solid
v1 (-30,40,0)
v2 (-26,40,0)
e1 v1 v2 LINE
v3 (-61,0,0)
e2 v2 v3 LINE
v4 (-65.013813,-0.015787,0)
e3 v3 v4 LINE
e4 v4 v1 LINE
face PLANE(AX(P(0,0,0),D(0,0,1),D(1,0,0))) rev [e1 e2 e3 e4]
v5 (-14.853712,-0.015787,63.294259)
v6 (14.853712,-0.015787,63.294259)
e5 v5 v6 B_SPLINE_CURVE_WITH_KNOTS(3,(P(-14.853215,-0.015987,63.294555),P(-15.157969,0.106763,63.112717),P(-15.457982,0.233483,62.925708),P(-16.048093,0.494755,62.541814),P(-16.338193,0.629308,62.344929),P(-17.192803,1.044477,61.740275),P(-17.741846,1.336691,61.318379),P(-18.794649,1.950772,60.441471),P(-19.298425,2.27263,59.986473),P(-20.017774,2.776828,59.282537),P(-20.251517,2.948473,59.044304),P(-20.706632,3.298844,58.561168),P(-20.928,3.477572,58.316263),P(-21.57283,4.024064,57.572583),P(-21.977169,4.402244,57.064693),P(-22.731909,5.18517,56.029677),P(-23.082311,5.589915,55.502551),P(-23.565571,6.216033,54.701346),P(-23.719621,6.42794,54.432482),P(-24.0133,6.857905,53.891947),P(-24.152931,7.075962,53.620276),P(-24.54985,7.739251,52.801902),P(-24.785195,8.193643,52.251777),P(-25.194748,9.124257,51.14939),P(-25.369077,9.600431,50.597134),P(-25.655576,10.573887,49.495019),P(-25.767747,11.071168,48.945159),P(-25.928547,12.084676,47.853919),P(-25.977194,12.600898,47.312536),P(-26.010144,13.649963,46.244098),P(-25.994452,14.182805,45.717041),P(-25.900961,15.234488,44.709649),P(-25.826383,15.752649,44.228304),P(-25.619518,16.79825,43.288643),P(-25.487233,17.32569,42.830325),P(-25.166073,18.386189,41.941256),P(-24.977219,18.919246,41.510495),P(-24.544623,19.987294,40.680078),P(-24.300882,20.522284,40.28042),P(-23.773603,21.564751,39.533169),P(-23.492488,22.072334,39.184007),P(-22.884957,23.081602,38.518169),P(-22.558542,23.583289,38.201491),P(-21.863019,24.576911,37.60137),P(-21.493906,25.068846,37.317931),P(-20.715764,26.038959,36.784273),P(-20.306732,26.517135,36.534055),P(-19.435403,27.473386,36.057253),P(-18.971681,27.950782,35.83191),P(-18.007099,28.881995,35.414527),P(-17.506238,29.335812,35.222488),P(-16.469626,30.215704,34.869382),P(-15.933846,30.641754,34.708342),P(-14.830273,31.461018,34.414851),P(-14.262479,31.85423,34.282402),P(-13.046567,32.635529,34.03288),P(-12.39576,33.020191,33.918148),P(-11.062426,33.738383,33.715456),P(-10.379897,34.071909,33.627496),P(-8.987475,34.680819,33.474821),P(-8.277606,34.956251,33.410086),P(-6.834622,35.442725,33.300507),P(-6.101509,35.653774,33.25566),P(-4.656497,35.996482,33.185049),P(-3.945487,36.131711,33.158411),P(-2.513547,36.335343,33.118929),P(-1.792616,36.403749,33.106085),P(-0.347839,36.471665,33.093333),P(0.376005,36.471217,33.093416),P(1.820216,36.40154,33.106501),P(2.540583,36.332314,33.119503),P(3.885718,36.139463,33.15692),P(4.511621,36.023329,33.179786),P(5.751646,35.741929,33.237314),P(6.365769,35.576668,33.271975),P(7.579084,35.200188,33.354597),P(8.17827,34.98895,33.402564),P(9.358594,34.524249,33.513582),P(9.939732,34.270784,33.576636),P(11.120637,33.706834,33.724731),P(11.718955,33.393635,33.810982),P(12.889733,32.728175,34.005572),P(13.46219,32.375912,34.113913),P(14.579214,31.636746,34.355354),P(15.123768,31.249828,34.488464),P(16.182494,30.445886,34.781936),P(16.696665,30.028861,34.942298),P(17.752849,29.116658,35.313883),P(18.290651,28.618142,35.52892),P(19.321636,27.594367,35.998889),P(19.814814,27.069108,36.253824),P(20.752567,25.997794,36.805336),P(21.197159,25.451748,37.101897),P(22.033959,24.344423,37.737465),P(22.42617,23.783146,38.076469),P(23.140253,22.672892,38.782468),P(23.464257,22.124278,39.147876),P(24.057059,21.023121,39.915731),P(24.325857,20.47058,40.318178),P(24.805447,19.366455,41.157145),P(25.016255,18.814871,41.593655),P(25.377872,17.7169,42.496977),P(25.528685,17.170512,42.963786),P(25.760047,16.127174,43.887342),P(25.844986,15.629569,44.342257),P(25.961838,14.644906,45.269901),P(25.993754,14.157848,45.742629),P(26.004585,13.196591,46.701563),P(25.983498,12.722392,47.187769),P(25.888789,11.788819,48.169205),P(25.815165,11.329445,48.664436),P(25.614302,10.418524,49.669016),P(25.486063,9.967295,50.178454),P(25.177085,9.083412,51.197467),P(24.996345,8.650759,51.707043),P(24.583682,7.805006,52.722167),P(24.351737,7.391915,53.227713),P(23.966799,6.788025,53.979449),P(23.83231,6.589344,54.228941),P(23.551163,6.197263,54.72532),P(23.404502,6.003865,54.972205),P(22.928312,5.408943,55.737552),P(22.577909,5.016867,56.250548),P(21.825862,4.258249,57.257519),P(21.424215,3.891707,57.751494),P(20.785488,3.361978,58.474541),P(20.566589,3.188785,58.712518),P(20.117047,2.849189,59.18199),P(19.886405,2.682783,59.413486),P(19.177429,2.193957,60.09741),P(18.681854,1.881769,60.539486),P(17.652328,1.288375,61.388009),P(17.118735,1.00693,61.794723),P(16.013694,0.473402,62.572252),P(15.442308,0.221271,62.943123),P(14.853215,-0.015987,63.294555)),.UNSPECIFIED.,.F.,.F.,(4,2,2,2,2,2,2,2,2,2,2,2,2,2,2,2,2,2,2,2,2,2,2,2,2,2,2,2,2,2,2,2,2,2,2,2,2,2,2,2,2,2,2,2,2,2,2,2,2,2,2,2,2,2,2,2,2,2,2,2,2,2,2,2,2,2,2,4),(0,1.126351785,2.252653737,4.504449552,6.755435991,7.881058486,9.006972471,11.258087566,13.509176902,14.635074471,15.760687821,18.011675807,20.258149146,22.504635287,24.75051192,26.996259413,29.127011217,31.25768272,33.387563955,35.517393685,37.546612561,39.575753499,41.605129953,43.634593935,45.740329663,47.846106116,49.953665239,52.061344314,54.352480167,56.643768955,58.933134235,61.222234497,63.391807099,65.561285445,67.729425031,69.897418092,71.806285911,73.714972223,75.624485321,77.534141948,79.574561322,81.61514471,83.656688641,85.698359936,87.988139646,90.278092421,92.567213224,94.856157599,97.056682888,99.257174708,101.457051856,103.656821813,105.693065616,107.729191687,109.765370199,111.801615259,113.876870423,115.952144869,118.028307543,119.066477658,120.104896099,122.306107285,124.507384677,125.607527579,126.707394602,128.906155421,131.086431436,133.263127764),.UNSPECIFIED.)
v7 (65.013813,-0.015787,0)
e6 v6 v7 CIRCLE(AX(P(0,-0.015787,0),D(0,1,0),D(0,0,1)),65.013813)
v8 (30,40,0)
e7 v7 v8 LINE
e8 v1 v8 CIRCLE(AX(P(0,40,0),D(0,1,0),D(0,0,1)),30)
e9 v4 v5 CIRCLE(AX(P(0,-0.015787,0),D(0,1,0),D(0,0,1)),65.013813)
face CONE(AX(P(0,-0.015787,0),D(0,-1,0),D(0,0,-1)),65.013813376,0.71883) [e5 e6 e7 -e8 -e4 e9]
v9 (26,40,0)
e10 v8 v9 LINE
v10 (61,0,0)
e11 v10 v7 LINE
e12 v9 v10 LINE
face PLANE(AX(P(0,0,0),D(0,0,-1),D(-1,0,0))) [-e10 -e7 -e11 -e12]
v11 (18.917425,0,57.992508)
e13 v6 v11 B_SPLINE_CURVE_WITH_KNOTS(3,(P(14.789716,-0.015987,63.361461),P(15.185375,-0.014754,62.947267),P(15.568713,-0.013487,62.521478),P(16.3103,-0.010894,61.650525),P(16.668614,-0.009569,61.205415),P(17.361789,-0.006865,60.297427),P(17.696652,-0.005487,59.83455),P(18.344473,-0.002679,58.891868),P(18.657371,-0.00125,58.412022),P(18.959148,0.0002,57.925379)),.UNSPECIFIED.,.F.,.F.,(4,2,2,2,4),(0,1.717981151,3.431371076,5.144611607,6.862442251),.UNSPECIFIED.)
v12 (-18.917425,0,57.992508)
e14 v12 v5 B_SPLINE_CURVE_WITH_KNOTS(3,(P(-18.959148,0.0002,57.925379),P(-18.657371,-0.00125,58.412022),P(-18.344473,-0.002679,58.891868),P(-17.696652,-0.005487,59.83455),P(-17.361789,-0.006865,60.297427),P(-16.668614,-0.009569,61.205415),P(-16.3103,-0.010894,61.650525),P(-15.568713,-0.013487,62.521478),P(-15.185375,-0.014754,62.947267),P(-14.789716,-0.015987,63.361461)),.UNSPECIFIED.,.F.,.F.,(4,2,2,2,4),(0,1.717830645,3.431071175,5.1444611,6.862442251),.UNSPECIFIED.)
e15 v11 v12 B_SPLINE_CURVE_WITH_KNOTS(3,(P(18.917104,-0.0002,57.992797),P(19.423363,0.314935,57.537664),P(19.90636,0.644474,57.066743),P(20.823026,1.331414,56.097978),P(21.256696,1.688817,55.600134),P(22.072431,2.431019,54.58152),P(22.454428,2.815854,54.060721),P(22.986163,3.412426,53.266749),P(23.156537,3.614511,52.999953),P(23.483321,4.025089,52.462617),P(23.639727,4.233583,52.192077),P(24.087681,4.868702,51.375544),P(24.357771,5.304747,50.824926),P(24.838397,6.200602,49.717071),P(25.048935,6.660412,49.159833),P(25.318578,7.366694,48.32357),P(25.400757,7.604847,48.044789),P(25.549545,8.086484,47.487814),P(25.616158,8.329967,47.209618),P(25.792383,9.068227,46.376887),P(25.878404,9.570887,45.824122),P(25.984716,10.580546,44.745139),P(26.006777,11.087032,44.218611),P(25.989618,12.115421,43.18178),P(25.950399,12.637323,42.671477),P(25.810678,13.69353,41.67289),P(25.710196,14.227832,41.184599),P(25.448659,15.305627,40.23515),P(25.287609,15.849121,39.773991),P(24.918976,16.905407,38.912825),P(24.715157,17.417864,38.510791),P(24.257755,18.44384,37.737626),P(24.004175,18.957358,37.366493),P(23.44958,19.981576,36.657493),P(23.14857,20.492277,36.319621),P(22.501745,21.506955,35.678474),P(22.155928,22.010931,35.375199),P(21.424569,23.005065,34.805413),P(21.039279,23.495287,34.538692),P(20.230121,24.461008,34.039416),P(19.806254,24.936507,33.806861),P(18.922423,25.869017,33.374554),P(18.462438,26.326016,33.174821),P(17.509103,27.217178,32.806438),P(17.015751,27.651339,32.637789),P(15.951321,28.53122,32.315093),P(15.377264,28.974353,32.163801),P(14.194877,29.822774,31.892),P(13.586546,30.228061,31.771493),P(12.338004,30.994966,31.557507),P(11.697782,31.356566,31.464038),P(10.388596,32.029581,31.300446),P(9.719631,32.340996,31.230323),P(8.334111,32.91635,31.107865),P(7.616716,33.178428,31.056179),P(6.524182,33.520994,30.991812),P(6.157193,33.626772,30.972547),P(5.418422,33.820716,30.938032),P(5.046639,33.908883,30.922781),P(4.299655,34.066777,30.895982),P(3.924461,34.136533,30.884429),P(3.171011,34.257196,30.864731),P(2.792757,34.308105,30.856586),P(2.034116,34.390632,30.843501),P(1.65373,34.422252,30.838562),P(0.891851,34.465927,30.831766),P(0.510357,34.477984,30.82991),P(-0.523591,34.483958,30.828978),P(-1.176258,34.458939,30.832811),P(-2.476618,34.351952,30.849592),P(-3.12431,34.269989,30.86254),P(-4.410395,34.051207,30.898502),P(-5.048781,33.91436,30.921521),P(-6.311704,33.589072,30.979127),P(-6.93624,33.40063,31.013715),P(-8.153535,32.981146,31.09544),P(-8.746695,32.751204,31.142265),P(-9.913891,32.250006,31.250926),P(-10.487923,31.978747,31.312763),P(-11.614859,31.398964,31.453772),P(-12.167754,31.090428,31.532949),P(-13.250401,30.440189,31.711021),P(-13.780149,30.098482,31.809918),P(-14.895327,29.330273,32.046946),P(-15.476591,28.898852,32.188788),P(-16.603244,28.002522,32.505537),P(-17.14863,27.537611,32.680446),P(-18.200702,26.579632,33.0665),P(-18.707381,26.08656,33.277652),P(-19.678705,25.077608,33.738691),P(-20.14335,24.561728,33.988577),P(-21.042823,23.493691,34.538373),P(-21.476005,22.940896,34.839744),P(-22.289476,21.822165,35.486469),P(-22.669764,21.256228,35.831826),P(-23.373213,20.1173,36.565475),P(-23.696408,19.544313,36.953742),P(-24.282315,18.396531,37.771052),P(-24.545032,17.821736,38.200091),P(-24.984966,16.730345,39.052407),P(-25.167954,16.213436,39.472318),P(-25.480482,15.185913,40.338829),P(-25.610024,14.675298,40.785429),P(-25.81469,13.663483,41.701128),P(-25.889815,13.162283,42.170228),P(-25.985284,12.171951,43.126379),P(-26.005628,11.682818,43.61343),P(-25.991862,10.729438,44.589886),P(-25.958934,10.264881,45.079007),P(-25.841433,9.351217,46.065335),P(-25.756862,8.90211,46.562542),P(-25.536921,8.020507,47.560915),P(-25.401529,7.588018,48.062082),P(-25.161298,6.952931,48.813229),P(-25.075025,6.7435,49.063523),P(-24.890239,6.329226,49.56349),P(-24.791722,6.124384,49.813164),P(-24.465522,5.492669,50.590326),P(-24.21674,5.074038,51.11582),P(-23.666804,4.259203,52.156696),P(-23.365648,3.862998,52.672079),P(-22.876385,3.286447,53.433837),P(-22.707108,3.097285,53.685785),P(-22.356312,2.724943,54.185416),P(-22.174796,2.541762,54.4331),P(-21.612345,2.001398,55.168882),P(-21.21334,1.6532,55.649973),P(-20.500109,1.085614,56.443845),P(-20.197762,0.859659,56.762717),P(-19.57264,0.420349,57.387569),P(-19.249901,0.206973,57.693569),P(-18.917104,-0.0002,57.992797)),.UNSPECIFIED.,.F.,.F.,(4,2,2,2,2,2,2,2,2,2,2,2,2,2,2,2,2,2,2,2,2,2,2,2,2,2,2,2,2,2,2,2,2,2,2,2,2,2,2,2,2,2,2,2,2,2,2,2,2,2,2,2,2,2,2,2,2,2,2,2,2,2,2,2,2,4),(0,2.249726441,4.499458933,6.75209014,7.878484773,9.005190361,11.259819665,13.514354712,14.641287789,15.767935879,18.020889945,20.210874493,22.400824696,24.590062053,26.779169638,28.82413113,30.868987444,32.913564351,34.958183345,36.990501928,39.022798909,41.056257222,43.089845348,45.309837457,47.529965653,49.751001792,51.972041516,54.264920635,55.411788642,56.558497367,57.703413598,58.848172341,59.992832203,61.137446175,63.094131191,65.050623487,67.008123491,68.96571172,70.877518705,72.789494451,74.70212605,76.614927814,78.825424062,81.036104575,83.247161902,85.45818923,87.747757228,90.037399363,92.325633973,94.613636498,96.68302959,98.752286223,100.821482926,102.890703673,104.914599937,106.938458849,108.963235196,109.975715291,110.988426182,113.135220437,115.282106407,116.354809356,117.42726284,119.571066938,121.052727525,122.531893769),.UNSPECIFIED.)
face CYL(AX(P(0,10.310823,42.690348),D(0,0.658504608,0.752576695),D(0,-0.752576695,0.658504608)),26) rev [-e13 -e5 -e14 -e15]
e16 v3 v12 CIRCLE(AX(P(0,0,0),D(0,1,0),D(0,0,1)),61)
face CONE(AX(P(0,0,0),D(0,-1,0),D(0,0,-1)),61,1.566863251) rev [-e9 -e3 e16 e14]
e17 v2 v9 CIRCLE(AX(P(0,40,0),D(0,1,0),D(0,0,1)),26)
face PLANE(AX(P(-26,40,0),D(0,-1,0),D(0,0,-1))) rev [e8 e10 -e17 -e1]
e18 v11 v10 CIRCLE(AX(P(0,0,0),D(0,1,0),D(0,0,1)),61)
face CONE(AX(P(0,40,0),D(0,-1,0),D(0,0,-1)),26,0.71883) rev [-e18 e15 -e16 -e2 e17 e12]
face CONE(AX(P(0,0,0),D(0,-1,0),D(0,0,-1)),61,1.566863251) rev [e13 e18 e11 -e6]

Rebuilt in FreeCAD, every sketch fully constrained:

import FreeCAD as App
import Part
import Sketcher
from FreeCAD import Vector
Q = App.Units.Quantity

doc = App.newDocument("Part")
body = doc.addObject("PartDesign::Body", "Body")

# Sketch on XY plane
sketch1 = body.newObject("Sketcher::SketchObject", "Sketch")
sketch1.AttachmentSupport = (doc.getObject("XY_Plane"), [""])
sketch1.MapMode = "FlatFace"
sketch1.addGeometry([
    Part.LineSegment(Vector(26, 40, 0), Vector(61, 0, 0)),
    Part.LineSegment(Vector(61, 0, 0), Vector(65, 0, 0)),
    Part.LineSegment(Vector(65, 0, 0), Vector(30, 40, 0)),
    Part.LineSegment(Vector(30, 40, 0), Vector(26, 40, 0)),
], False)
sketch1.addConstraint([
    Sketcher.Constraint("Coincident", 0, 2, 1, 1),
    Sketcher.Constraint("Coincident", 1, 2, 2, 1),
    Sketcher.Constraint("Coincident", 2, 2, 3, 1),
    Sketcher.Constraint("Coincident", 3, 2, 0, 1),
    Sketcher.Constraint("Horizontal", 3),
    Sketcher.Constraint("PointOnObject", 0, 2, -1),
    Sketcher.Constraint("Parallel", 0, 2),
    Sketcher.Constraint("DistanceX", 3, 2, 3, 1, Q("4 mm")),
    Sketcher.Constraint("DistanceX", -1, 1, 0, 2, Q("61 mm")),
    Sketcher.Constraint("DistanceX", -1, 1, 2, 2, Q("30 mm")),
    Sketcher.Constraint("DistanceY", -1, 1, 2, 2, Q("40 mm")),
    Sketcher.Constraint("Distance", 1, Q("4.013844 mm")),
])
revolution = body.newObject("PartDesign::Revolution", "Revolution")
revolution.Profile = sketch1
revolution.ReferenceAxis = (sketch1, ["V_Axis"])
revolution.Angle = 180
revolution.Reversed = True

# Sketch on an angled plane
sketch2 = body.newObject("Sketcher::SketchObject", "Sketch001")
sketch2.Placement = App.Placement(Vector(0, 32.212389, 36.814159), App.Rotation(Vector(1, 0, 0), Vector(0, 0.752576695, -0.658504608), Vector(0, 0.658504608, 0.752576695), "ZXY"))
sketch2.addGeometry(Part.Circle(Vector(0, -20, 0), Vector(0, 0, 1), 26), False)
sketch2.addConstraint([
    Sketcher.Constraint("PointOnObject", 0, 3, -2),
    Sketcher.Constraint("Diameter", 0, Q("52 mm")),
    Sketcher.Constraint("DistanceY", 0, 3, -1, 1, Q("20.352106 mm")),
])
pocket1 = body.newObject("PartDesign::Pocket", "Pocket")
pocket1.Profile = sketch2
pocket1.Length = 10

doc.recompute()
